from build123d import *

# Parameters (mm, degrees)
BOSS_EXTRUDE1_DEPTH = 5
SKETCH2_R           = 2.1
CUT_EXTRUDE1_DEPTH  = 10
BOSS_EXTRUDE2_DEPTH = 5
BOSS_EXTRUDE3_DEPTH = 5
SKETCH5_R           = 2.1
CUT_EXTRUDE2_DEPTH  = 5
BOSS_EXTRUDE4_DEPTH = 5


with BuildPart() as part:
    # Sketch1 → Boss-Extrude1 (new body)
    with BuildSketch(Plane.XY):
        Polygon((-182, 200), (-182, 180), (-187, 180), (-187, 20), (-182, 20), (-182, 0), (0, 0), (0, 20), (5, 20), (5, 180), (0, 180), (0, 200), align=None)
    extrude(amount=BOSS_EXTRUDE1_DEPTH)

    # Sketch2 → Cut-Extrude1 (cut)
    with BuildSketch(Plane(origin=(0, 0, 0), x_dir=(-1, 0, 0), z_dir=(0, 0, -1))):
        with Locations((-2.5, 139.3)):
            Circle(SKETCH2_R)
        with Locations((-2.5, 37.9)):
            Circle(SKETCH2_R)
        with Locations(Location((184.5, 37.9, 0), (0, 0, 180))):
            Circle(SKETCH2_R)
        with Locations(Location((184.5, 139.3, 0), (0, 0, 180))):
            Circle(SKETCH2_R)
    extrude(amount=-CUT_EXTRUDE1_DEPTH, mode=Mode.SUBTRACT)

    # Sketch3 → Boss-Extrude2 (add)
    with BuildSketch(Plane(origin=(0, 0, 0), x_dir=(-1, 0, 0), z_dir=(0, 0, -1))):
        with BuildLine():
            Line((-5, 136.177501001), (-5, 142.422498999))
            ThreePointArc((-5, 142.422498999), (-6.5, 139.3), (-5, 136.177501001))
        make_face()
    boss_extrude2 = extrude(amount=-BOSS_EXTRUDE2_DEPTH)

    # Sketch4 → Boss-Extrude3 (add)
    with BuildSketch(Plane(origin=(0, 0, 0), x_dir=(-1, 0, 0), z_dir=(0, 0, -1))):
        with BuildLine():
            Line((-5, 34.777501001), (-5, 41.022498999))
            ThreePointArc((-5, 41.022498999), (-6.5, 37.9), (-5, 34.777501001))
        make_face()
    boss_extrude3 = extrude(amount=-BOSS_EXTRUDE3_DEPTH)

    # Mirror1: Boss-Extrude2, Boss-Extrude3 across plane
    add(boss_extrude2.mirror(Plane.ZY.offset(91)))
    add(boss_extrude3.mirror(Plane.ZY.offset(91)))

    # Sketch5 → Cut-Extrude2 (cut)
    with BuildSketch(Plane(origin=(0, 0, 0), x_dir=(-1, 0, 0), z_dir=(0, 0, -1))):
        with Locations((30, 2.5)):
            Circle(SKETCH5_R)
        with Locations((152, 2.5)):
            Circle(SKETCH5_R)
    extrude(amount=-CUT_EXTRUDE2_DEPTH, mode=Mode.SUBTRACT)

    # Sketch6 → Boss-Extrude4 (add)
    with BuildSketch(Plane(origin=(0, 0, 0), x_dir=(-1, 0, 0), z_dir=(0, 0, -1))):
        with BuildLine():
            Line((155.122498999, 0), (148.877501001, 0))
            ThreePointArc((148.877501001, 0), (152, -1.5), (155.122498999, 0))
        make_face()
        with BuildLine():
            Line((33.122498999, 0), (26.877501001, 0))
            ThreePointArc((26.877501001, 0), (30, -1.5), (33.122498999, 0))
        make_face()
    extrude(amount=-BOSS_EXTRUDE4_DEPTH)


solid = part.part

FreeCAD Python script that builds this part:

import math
import FreeCAD as App
import Part
import Sketcher
from FreeCAD import Vector
Q = App.Units.Quantity


def add_polygon(sketch, points):
    """Adds a closed chain of lines whose ends are joined by coincident constraints."""
    first, n = sketch.GeometryCount, len(points)
    for a, b in zip(points, points[1:] + points[:1]):
        sketch.addGeometry(Part.LineSegment(App.Vector(*a, 0), App.Vector(*b, 0)), False)
    for i in range(n):
        sketch.addConstraint(Sketcher.Constraint("Coincident", first + i, 2, first + (i + 1) % n, 1))

doc = App.newDocument("Part")
params = doc.addObject("Spreadsheet::Sheet", "Params")
for row, (alias, value) in enumerate([
    ("sketch1_width", "5 mm"),
    ("sketch1_width2", "182 mm"),
    ("sketch1_height", "20 mm"),
    ("sketch1_height2", "160 mm"),
    ("pad1_length", "5 mm"),
    ("sketch2_diameter", "4.2 mm"),
    ("pocket1_length", "10 mm"),
    ("sketch3_radius", "4 mm"),
    ("pad2_length", "5 mm"),
    ("sketch4_radius", "4 mm"),
    ("pad3_length", "5 mm"),
    ("sketch5_diameter", "4.2 mm"),
    ("pocket2_length", "5 mm"),
    ("sketch6_radius", "4 mm"),
    ("pad4_length", "5 mm"),
], start=1):
    params.set(f"A{row}", alias)
    params.set(f"B{row}", "=" + value)
    params.setAlias(f"B{row}", alias)

body = doc.addObject("PartDesign::Body", "Body")

# Sketch on XY plane
sketch1 = body.newObject("Sketcher::SketchObject", "Sketch")
sketch1.AttachmentSupport = (doc.getObject("XY_Plane"), [""])
sketch1.MapMode = "FlatFace"
add_polygon(sketch1, [(-182, 200), (-182, 180), (-187, 180), (-187, 20), (-182, 20), (-182, 0), (0, 0), (0, 20), (5, 20), (5, 180), (0, 180), (0, 200)])  # lines 0-11
sketch1.addConstraint(Sketcher.Constraint("Vertical", 0))
sketch1.addConstraint(Sketcher.Constraint("Horizontal", 1))
sketch1.addConstraint(Sketcher.Constraint("Vertical", 2))
sketch1.addConstraint(Sketcher.Constraint("Horizontal", 3))
sketch1.addConstraint(Sketcher.Constraint("Vertical", 4))
sketch1.addConstraint(Sketcher.Constraint("Horizontal", 5))
sketch1.addConstraint(Sketcher.Constraint("Vertical", 6))
sketch1.addConstraint(Sketcher.Constraint("Horizontal", 7))
sketch1.addConstraint(Sketcher.Constraint("Vertical", 8))
sketch1.addConstraint(Sketcher.Constraint("Horizontal", 9))
sketch1.addConstraint(Sketcher.Constraint("Vertical", 10))
sketch1.addConstraint(Sketcher.Constraint("Horizontal", 11))
sketch1.addConstraint(Sketcher.Constraint("Coincident", 5, 2, -1, 1))
sketch1.addConstraint(Sketcher.Constraint("PointOnObject", 9, 2, -2))
sketch1.addConstraint(Sketcher.Constraint("Horizontal", 3, 2, 6, 2))
sketch1.addConstraint(Sketcher.Constraint("Horizontal", 1, 2, 8, 2))
sketch1.addConstraint(Sketcher.Constraint("Vertical", 0, 2, 3, 2))
sketch1.addConstraint(Sketcher.Constraint("Equal", 3, 7))
sketch1.addConstraint(Sketcher.Constraint("Equal", 0, 4))
sketch1.addConstraint(Sketcher.Constraint("DistanceX", 1, 2, 1, 1, Q("5 mm")))
sketch1.addConstraint(Sketcher.Constraint("DistanceX", 5, 1, 5, 2, Q("182 mm")))
sketch1.addConstraint(Sketcher.Constraint("DistanceY", 0, 2, 0, 1, Q("20 mm")))
sketch1.addConstraint(Sketcher.Constraint("DistanceY", 2, 2, 2, 1, Q("160 mm")))
sketch1.setExpression("Constraints[31]", "Params.sketch1_width")
sketch1.setExpression("Constraints[32]", "Params.sketch1_width2")
sketch1.setExpression("Constraints[33]", "Params.sketch1_height")
sketch1.setExpression("Constraints[34]", "Params.sketch1_height2")
pad1 = body.newObject("PartDesign::Pad", "Pad")
pad1.Profile = sketch1
pad1.setExpression("Length", "Params.pad1_length")

# Sketch on XY plane
sketch2 = body.newObject("Sketcher::SketchObject", "Sketch001")
sketch2.AttachmentSupport = (doc.getObject("XY_Plane"), [""])
sketch2.MapMode = "FlatFace"
sketch2.addGeometry(Part.Circle(Vector(2.5, 139.3, 0), Vector(0, 0, 1), 2.1), False)
sketch2.addGeometry(Part.Circle(Vector(2.5, 37.9, 0), Vector(0, 0, 1), 2.1), False)
sketch2.addGeometry(Part.Circle(Vector(-184.5, 37.9, 0), Vector(0, 0, 1), 2.1), False)
sketch2.addGeometry(Part.Circle(Vector(-184.5, 139.3, 0), Vector(0, 0, 1), 2.1), False)
sketch2.addConstraint(Sketcher.Constraint("Equal", 0, 1))
sketch2.addConstraint(Sketcher.Constraint("Equal", 1, 2))
sketch2.addConstraint(Sketcher.Constraint("Equal", 2, 3))
sketch2.addConstraint(Sketcher.Constraint("Horizontal", 1, 3, 2, 3))
sketch2.addConstraint(Sketcher.Constraint("Horizontal", 0, 3, 3, 3))
sketch2.addConstraint(Sketcher.Constraint("Vertical", 0, 3, 1, 3))
sketch2.addConstraint(Sketcher.Constraint("Vertical", 2, 3, 3, 3))
sketch2.addConstraint(Sketcher.Constraint("Diameter", 0, Q("4.2 mm")))
sketch2.addConstraint(Sketcher.Constraint("DistanceX", 2, 3, 1, 3, Q("187 mm")))
sketch2.addConstraint(Sketcher.Constraint("DistanceX", -1, 1, 0, 3, Q("2.5 mm")))
sketch2.addConstraint(Sketcher.Constraint("DistanceY", -1, 1, 0, 3, Q("139.3 mm")))
sketch2.addConstraint(Sketcher.Constraint("DistanceY", -1, 1, 1, 3, Q("37.9 mm")))
sketch2.setExpression("Constraints[7]", "Params.sketch2_diameter")
pocket1 = body.newObject("PartDesign::Pocket", "Pocket")
pocket1.Profile = sketch2
pocket1.setExpression("Length", "Params.pocket1_length")
pocket1.Reversed = True

# Sketch on XY plane
sketch3 = body.newObject("Sketcher::SketchObject", "Sketch002")
sketch3.AttachmentSupport = (doc.getObject("XY_Plane"), [""])
sketch3.MapMode = "FlatFace"
sketch3.addGeometry(Part.LineSegment(Vector(5, 136.177501, 0), Vector(5, 142.422499, 0)), False)
sketch3.addGeometry(Part.ArcOfCircle(Part.Circle(Vector(2.5, 139.3, 0), Vector(0, 0, 1), 4), math.radians(-51.317813), math.radians(51.317813)), False)
sketch3.addConstraint(Sketcher.Constraint("Coincident", 0, 1, 1, 1))
sketch3.addConstraint(Sketcher.Constraint("Coincident", 1, 2, 0, 2))
sketch3.addConstraint(Sketcher.Constraint("Vertical", 0))
sketch3.addConstraint(Sketcher.Constraint("Radius", 1, Q("4 mm")))
sketch3.addConstraint(Sketcher.Constraint("DistanceX", -1, 1, 0, 1, Q("5 mm")))
sketch3.addConstraint(Sketcher.Constraint("DistanceX", -1, 1, 1, 3, Q("2.5 mm")))
sketch3.addConstraint(Sketcher.Constraint("DistanceY", -1, 1, 1, 3, Q("139.3 mm")))
sketch3.setExpression("Constraints[3]", "Params.sketch3_radius")
pad2 = body.newObject("PartDesign::Pad", "Pad001")
pad2.Profile = sketch3
pad2.setExpression("Length", "Params.pad2_length")

# Sketch on XY plane
sketch4 = body.newObject("Sketcher::SketchObject", "Sketch003")
sketch4.AttachmentSupport = (doc.getObject("XY_Plane"), [""])
sketch4.MapMode = "FlatFace"
sketch4.addGeometry(Part.LineSegment(Vector(5, 34.777501, 0), Vector(5, 41.022499, 0)), False)
sketch4.addGeometry(Part.ArcOfCircle(Part.Circle(Vector(2.5, 37.9, 0), Vector(0, 0, 1), 4), math.radians(-51.317813), math.radians(51.317813)), False)
sketch4.addConstraint(Sketcher.Constraint("Coincident", 0, 1, 1, 1))
sketch4.addConstraint(Sketcher.Constraint("Coincident", 1, 2, 0, 2))
sketch4.addConstraint(Sketcher.Constraint("Vertical", 0))
sketch4.addConstraint(Sketcher.Constraint("Radius", 1, Q("4 mm")))
sketch4.addConstraint(Sketcher.Constraint("DistanceX", -1, 1, 0, 1, Q("5 mm")))
sketch4.addConstraint(Sketcher.Constraint("DistanceX", -1, 1, 1, 3, Q("2.5 mm")))
sketch4.addConstraint(Sketcher.Constraint("DistanceY", -1, 1, 1, 3, Q("37.9 mm")))
sketch4.setExpression("Constraints[3]", "Params.sketch4_radius")
pad3 = body.newObject("PartDesign::Pad", "Pad002")
pad3.Profile = sketch4
pad3.setExpression("Length", "Params.pad3_length")
doc.recompute()

datumplane = body.newObject("PartDesign::Plane", "DatumPlane")
datumplane.AttachmentSupport = (doc.getObject("YZ_Plane"), [""])
datumplane.MapMode = "FlatFace"
datumplane.AttachmentOffset = App.Placement(Vector(0, 0, -91), App.Rotation())
mirrored = body.newObject("PartDesign::Mirrored", "Mirrored")
mirrored.Originals = [pad2, pad3]
mirrored.MirrorPlane = (datumplane, [""])
body.Tip = mirrored

# Sketch on XY plane
sketch5 = body.newObject("Sketcher::SketchObject", "Sketch004")
sketch5.AttachmentSupport = (doc.getObject("XY_Plane"), [""])
sketch5.MapMode = "FlatFace"
sketch5.addGeometry(Part.Circle(Vector(-30, 2.5, 0), Vector(0, 0, 1), 2.1), False)
sketch5.addGeometry(Part.Circle(Vector(-152, 2.5, 0), Vector(0, 0, 1), 2.1), False)
sketch5.addConstraint(Sketcher.Constraint("Equal", 0, 1))
sketch5.addConstraint(Sketcher.Constraint("Horizontal", 0, 3, 1, 3))
sketch5.addConstraint(Sketcher.Constraint("Diameter", 0, Q("4.2 mm")))
sketch5.addConstraint(Sketcher.Constraint("DistanceX", 0, 3, -1, 1, Q("30 mm")))
sketch5.addConstraint(Sketcher.Constraint("DistanceX", 1, 3, -1, 1, Q("152 mm")))
sketch5.addConstraint(Sketcher.Constraint("DistanceY", -1, 1, 0, 3, Q("2.5 mm")))
sketch5.setExpression("Constraints[2]", "Params.sketch5_diameter")
pocket2 = body.newObject("PartDesign::Pocket", "Pocket001")
pocket2.Profile = sketch5
pocket2.setExpression("Length", "Params.pocket2_length")
pocket2.Reversed = True

# Sketch on XY plane
sketch6 = body.newObject("Sketcher::SketchObject", "Sketch005")
sketch6.AttachmentSupport = (doc.getObject("XY_Plane"), [""])
sketch6.MapMode = "FlatFace"
sketch6.addGeometry(Part.LineSegment(Vector(-155.122499, 0, 0), Vector(-148.877501, 0, 0)), False)
sketch6.addGeometry(Part.ArcOfCircle(Part.Circle(Vector(-152, 2.5, 0), Vector(0, 0, 1), 4), math.radians(-141.317813), math.radians(-38.682187)), False)
sketch6.addGeometry(Part.LineSegment(Vector(-33.122499, 0, 0), Vector(-26.877501, 0, 0)), False)
sketch6.addGeometry(Part.ArcOfCircle(Part.Circle(Vector(-30, 2.5, 0), Vector(0, 0, 1), 4), math.radians(-141.317813), math.radians(-38.682187)), False)
sketch6.addConstraint(Sketcher.Constraint("Coincident", 0, 1, 1, 1))
sketch6.addConstraint(Sketcher.Constraint("Coincident", 1, 2, 0, 2))
sketch6.addConstraint(Sketcher.Constraint("Coincident", 2, 1, 3, 1))
sketch6.addConstraint(Sketcher.Constraint("Coincident", 3, 2, 2, 2))
sketch6.addConstraint(Sketcher.Constraint("Horizontal", 0))
sketch6.addConstraint(Sketcher.Constraint("Horizontal", 2))
sketch6.addConstraint(Sketcher.Constraint("Equal", 1, 3))
sketch6.addConstraint(Sketcher.Constraint("PointOnObject", 0, 1, -1))
sketch6.addConstraint(Sketcher.Constraint("PointOnObject", 2, 1, -1))
sketch6.addConstraint(Sketcher.Constraint("Horizontal", 1, 3, 3, 3))
sketch6.addConstraint(Sketcher.Constraint("Radius", 1, Q("4 mm")))
sketch6.addConstraint(Sketcher.Constraint("DistanceX", 1, 3, -1, 1, Q("152 mm")))
sketch6.addConstraint(Sketcher.Constraint("DistanceX", 3, 3, -1, 1, Q("30 mm")))
sketch6.addConstraint(Sketcher.Constraint("DistanceY", -1, 1, 1, 3, Q("2.5 mm")))
sketch6.setExpression("Constraints[10]", "Params.sketch6_radius")
pad4 = body.newObject("PartDesign::Pad", "Pad003")
pad4.Profile = sketch6
pad4.setExpression("Length", "Params.pad4_length")

doc.recompute()
